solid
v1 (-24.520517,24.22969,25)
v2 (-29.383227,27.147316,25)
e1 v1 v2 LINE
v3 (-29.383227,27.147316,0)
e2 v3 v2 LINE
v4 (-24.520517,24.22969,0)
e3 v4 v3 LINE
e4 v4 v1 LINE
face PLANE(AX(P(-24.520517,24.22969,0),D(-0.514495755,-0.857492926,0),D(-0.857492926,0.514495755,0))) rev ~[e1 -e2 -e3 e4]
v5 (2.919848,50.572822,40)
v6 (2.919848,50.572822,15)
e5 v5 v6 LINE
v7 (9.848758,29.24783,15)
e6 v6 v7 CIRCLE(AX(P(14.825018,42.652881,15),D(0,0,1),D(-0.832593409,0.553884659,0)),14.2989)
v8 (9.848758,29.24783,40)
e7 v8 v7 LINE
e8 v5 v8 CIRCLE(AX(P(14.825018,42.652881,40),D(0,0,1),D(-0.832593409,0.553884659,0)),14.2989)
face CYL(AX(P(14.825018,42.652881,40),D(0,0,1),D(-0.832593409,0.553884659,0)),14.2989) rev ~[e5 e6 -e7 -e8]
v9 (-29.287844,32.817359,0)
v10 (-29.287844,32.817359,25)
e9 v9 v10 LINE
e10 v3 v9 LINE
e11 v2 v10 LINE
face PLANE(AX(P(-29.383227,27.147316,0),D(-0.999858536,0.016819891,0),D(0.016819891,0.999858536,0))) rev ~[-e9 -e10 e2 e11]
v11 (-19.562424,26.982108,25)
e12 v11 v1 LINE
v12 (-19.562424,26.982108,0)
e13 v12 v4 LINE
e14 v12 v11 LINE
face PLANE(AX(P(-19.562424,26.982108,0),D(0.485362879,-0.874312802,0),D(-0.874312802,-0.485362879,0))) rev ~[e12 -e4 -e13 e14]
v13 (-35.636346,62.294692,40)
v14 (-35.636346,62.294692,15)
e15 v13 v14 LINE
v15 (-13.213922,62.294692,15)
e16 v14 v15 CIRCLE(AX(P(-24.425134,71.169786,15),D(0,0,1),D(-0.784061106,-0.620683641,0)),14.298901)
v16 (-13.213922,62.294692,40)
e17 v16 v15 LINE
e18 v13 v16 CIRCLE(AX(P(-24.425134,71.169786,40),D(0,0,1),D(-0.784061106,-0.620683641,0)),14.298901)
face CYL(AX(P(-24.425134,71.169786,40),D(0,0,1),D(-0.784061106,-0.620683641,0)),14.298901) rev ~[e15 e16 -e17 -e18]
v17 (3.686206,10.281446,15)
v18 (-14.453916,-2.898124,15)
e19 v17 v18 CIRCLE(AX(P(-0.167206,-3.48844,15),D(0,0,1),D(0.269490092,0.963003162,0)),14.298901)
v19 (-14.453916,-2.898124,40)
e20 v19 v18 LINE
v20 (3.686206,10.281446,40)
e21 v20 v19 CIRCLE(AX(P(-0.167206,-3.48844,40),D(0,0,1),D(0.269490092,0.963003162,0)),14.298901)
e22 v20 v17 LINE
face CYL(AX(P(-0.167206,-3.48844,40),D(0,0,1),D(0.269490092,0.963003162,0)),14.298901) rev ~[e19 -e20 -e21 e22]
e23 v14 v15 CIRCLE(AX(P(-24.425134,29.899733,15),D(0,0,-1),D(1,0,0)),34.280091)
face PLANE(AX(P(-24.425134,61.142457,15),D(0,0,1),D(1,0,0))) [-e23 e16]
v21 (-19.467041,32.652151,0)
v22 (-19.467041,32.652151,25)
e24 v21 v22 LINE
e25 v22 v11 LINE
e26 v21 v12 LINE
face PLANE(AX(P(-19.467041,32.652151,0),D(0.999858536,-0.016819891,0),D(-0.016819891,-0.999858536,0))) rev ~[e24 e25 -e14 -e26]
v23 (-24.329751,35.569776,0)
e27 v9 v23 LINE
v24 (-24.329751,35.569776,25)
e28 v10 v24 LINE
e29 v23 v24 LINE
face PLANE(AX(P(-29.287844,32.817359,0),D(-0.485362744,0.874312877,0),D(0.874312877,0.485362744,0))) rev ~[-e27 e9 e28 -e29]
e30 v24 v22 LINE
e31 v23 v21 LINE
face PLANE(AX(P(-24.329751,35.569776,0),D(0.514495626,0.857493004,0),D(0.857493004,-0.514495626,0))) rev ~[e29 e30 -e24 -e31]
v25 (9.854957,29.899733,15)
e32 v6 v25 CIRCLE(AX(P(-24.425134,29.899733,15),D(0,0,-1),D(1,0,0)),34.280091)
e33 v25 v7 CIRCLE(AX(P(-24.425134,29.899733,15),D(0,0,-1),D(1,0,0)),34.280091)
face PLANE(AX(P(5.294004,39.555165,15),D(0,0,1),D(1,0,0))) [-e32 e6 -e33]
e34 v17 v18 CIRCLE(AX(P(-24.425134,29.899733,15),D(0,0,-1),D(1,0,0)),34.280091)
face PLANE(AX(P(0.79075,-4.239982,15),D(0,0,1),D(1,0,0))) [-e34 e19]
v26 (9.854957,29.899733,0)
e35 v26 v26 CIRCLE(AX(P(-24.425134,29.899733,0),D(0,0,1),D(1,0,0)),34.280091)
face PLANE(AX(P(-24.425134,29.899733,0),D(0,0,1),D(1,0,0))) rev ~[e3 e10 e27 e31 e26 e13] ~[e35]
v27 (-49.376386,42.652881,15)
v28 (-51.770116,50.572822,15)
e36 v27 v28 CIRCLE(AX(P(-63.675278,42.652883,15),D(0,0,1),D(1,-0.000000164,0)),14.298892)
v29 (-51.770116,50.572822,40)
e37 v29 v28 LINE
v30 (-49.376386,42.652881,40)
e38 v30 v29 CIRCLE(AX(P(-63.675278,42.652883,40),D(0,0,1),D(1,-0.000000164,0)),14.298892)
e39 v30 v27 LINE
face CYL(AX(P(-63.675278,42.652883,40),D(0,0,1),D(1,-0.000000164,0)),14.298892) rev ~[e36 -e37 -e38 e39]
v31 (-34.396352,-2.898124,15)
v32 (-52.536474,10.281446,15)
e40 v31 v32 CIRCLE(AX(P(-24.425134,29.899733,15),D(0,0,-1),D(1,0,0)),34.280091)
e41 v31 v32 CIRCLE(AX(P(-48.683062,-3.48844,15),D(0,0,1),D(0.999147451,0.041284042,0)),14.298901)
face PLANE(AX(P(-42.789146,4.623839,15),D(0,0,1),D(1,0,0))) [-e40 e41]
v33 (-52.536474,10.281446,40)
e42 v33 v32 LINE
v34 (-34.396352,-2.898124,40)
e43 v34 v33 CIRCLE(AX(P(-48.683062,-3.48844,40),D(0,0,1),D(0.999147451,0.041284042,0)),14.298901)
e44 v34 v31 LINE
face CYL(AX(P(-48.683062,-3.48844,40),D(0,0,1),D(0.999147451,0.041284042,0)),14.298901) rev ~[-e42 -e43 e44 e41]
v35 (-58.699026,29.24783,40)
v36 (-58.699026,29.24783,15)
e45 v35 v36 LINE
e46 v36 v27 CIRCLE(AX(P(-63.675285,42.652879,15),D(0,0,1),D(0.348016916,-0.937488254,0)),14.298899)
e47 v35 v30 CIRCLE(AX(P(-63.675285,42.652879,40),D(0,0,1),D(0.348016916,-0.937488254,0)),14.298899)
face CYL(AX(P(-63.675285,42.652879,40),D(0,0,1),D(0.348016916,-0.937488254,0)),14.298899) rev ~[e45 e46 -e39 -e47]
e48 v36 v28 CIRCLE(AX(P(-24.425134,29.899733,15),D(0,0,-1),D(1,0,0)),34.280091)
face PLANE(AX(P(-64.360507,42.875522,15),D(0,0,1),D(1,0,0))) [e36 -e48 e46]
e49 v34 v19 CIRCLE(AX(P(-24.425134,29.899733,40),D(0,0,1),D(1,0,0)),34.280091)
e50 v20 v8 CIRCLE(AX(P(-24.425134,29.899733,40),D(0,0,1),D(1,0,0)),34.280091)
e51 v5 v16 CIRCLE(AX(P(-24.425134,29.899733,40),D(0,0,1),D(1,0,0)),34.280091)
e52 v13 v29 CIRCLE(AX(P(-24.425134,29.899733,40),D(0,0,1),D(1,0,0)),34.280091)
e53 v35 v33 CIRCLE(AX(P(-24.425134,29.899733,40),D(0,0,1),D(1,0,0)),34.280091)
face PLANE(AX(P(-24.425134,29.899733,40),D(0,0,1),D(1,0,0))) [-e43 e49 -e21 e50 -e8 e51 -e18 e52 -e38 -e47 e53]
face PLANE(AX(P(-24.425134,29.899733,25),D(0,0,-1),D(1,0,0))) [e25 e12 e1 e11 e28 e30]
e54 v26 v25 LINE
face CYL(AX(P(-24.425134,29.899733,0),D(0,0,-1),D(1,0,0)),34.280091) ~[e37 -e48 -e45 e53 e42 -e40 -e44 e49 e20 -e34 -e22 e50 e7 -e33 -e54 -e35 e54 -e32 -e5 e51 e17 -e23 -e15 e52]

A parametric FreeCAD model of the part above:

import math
import FreeCAD as App
import Part
import Sketcher


def add_polygon(sketch, points):
    """Adds a closed chain of lines whose ends are joined by coincident constraints."""
    first, n = sketch.GeometryCount, len(points)
    for a, b in zip(points, points[1:] + points[:1]):
        sketch.addGeometry(Part.LineSegment(App.Vector(*a, 0), App.Vector(*b, 0)), False)
    for i in range(n):
        sketch.addConstraint(Sketcher.Constraint("Coincident", first + i, 2, first + (i + 1) % n, 1))

doc = App.newDocument("Part")
body = doc.addObject("PartDesign::Body", "Body")

# Sketch on XY plane
sketch1 = doc.addObject("Sketcher::SketchObject", "Sketch")
body.addObject(sketch1)
sketch1.AttachmentSupport = (doc.XY_Plane, [""])
sketch1.MapMode = "FlatFace"
sketch1.addGeometry(Part.Circle(App.Vector(-24, 30, 0), App.Vector(0, 0, 1), 34), False)
sketch1.addConstraint(Sketcher.Constraint("Diameter", 0, 68.560182))
sketch1.addConstraint(Sketcher.Constraint("DistanceX", 0, 3, -1, 1, 24.425134))
sketch1.addConstraint(Sketcher.Constraint("DistanceY", -1, 1, 0, 3, 29.899733))
pad1 = doc.addObject("PartDesign::Pad", "Pad")
body.addObject(pad1)
pad1.Profile = sketch1
pad1.Length = 40

# Sketch on XY plane
sketch2 = doc.addObject("Sketcher::SketchObject", "Sketch001")
body.addObject(sketch2)
sketch2.AttachmentSupport = (doc.XY_Plane, [""])
sketch2.MapMode = "FlatFace"
sketch2.AttachmentOffset = App.Placement(App.Vector(0, 0, 40), App.Rotation())
sketch2.addGeometry(Part.ArcOfCircle(Part.Circle(App.Vector(-24.4, 71.2, 0), App.Vector(0, 0, 1), 14.3), math.radians(-142), math.radians(-38)), False)
sketch2.addGeometry(Part.ArcOfCircle(Part.Circle(App.Vector(-24.4, 71.2, 0), App.Vector(0, 0, 1), 14.3), math.radians(-38), math.radians(0)), False)
sketch2.addGeometry(Part.ArcOfCircle(Part.Circle(App.Vector(-24.4, 71.2, 0), App.Vector(0, 0, 1), 14.3), math.radians(0), math.radians(218)), False)
sketch2.addGeometry(Part.ArcOfCircle(Part.Circle(App.Vector(14.8, 42.7, 0), App.Vector(0, 0, 1), 14.3), math.radians(146), math.radians(250)), False)
sketch2.addGeometry(Part.ArcOfCircle(Part.Circle(App.Vector(14.8, 42.7, 0), App.Vector(0, 0, 1), 14.3), math.radians(-110), math.radians(0)), False)
sketch2.addGeometry(Part.ArcOfCircle(Part.Circle(App.Vector(14.8, 42.7, 0), App.Vector(0, 0, 1), 14.3), math.radians(0), math.radians(146)), False)
sketch2.addGeometry(Part.ArcOfCircle(Part.Circle(App.Vector(-0.2, -3.5, 0), App.Vector(0, 0, 1), 14.3), math.radians(0), math.radians(74)), False)
sketch2.addGeometry(Part.ArcOfCircle(Part.Circle(App.Vector(-0.2, -3.5, 0), App.Vector(0, 0, 1), 14.3), math.radians(74), math.radians(178)), False)
sketch2.addGeometry(Part.ArcOfCircle(Part.Circle(App.Vector(-0.2, -3.5, 0), App.Vector(0, 0, 1), 14.3), math.radians(178), math.radians(360)), False)
sketch2.addGeometry(Part.ArcOfCircle(Part.Circle(App.Vector(-48.7, -3.5, 0), App.Vector(0, 0, 1), 14.3), math.radians(2), math.radians(106)), False)
sketch2.addGeometry(Part.ArcOfCircle(Part.Circle(App.Vector(-48.7, -3.5, 0), App.Vector(0, 0, 1), 14.3), math.radians(106), math.radians(360)), False)
sketch2.addGeometry(Part.ArcOfCircle(Part.Circle(App.Vector(-48.7, -3.5, 0), App.Vector(0, 0, 1), 14.3), math.radians(0), math.radians(2.37)), False)
sketch2.addGeometry(Part.ArcOfCircle(Part.Circle(App.Vector(-63.7, 42.7, 0), App.Vector(0, 0, 1), 14.3), math.radians(34), math.radians(290)), False)
sketch2.addGeometry(Part.ArcOfCircle(Part.Circle(App.Vector(-63.7, 42.7, 0), App.Vector(0, 0, 1), 14.3), math.radians(-70), math.radians(0)), False)
sketch2.addGeometry(Part.ArcOfCircle(Part.Circle(App.Vector(-63.7, 42.7, 0), App.Vector(0, 0, 1), 14.3), math.radians(0), math.radians(34)), False)
sketch2.addConstraint(Sketcher.Constraint("Tangent", 0, 2, 1, 1))
sketch2.addConstraint(Sketcher.Constraint("Tangent", 1, 2, 2, 1))
sketch2.addConstraint(Sketcher.Constraint("Tangent", 2, 2, 0, 1))
sketch2.addConstraint(Sketcher.Constraint("Tangent", 3, 2, 4, 1))
sketch2.addConstraint(Sketcher.Constraint("Tangent", 4, 2, 5, 1))
sketch2.addConstraint(Sketcher.Constraint("Tangent", 5, 2, 3, 1))
sketch2.addConstraint(Sketcher.Constraint("Tangent", 6, 2, 7, 1))
sketch2.addConstraint(Sketcher.Constraint("Tangent", 7, 2, 8, 1))
sketch2.addConstraint(Sketcher.Constraint("Tangent", 8, 2, 6, 1))
sketch2.addConstraint(Sketcher.Constraint("Tangent", 9, 2, 10, 1))
sketch2.addConstraint(Sketcher.Constraint("Tangent", 10, 2, 11, 1))
sketch2.addConstraint(Sketcher.Constraint("Coincident", 11, 2, 9, 1))
sketch2.addConstraint(Sketcher.Constraint("Tangent", 12, 2, 13, 1))
sketch2.addConstraint(Sketcher.Constraint("Tangent", 13, 2, 14, 1))
sketch2.addConstraint(Sketcher.Constraint("Tangent", 14, 2, 12, 1))
sketch2.addConstraint(Sketcher.Constraint("Equal", 2, 3))
sketch2.addConstraint(Sketcher.Constraint("Equal", 5, 6))
sketch2.addConstraint(Sketcher.Constraint("Equal", 8, 9))
sketch2.addConstraint(Sketcher.Constraint("Equal", 10, 12))
sketch2.addConstraint(Sketcher.Constraint("Horizontal", 8, 3, 9, 3))
sketch2.addConstraint(Sketcher.Constraint("Horizontal", 5, 3, 12, 3))
sketch2.addConstraint(Sketcher.Constraint("Horizontal", 2, 3, 1, 2))
sketch2.addConstraint(Sketcher.Constraint("Horizontal", 0, 2, 2, 2))
sketch2.addConstraint(Sketcher.Constraint("Horizontal", 13, 3, 4, 2))
sketch2.addConstraint(Sketcher.Constraint("Horizontal", 10, 3, 8, 2))
sketch2.addConstraint(Sketcher.Constraint("Horizontal", 6, 2, 9, 2))
sketch2.addConstraint(Sketcher.Constraint("Horizontal", 8, 2, 10, 2))
sketch2.addConstraint(Sketcher.Constraint("Horizontal", 7, 2, 11, 2))
sketch2.addConstraint(Sketcher.Constraint("Horizontal", 3, 2, 12, 2))
sketch2.addConstraint(Sketcher.Constraint("Horizontal", 4, 2, 13, 2))
sketch2.addConstraint(Sketcher.Constraint("Horizontal", 5, 2, 14, 2))
sketch2.addConstraint(Sketcher.Constraint("Radius", 0, 14.298901))
sketch2.addConstraint(Sketcher.Constraint("Radius", 11, 14.298058))
sketch2.addConstraint(Sketcher.Constraint("DistanceY", 14, 3, 1, 3, 28.516901))
sketch2.addConstraint(Sketcher.Constraint("DistanceX", 1, 3, -1, 1, 24.425128))
sketch2.addConstraint(Sketcher.Constraint("DistanceY", -1, 1, 3, 3, 42.652881))
sketch2.addConstraint(Sketcher.Constraint("DistanceX", -1, 1, 4, 3, 14.825019))
sketch2.addConstraint(Sketcher.Constraint("DistanceY", 6, 3, -1, 1, 3.488441))
sketch2.addConstraint(Sketcher.Constraint("DistanceX", 9, 3, -1, 1, 48.683062))
sketch2.addConstraint(Sketcher.Constraint("DistanceX", 0, 2, -1, 1, 13.213922))
sketch2.addConstraint(Sketcher.Constraint("DistanceX", -1, 1, 3, 2, 9.848758))
sketch2.addConstraint(Sketcher.Constraint("DistanceX", 0, 3, 6, 3, 24.257929))
sketch2.addConstraint(Sketcher.Constraint("DistanceX", 12, 3, 1, 3, 39.250159))
sketch2.addConstraint(Sketcher.Constraint("DistanceX", 5, 2, 3, 3, 11.90517))
sketch2.addConstraint(Sketcher.Constraint("DistanceX", 8, 3, 6, 2, 3.853411))
sketch2.addConstraint(Sketcher.Constraint("DistanceX", 7, 2, 7, 3, 14.28671))
pocket1 = doc.addObject("PartDesign::Pocket", "Pocket")
body.addObject(pocket1)
pocket1.Profile = sketch2
pocket1.Length = 25

# Sketch on XY plane
sketch3 = doc.addObject("Sketcher::SketchObject", "Sketch002")
body.addObject(sketch3)
sketch3.AttachmentSupport = (doc.XY_Plane, [""])
sketch3.MapMode = "FlatFace"
add_polygon(sketch3, [(-24.329751, 35.569776), (-19.467041, 32.652151), (-19.562424, 26.982108), (-24.520517, 24.22969), (-29.383227, 27.147316), (-29.287844, 32.817359)])  # lines 0-5
sketch3.addConstraint(Sketcher.Constraint("DistanceX", 0, 2, -1, 1, 19.467041))
sketch3.addConstraint(Sketcher.Constraint("DistanceY", -1, 1, 0, 2, 32.652151))
sketch3.addConstraint(Sketcher.Constraint("DistanceY", -1, 1, 1, 2, 26.982108))
sketch3.addConstraint(Sketcher.Constraint("DistanceY", -1, 1, 2, 2, 24.22969))
sketch3.addConstraint(Sketcher.Constraint("DistanceY", -1, 1, 4, 2, 32.817359))
sketch3.addConstraint(Sketcher.Constraint("DistanceX", 5, 2, -1, 1, 24.329751))
sketch3.addConstraint(Sketcher.Constraint("DistanceX", 3, 2, 2, 2, 4.86271))
sketch3.addConstraint(Sketcher.Constraint("DistanceX", 4, 2, 1, 2, 9.72542))
sketch3.addConstraint(Sketcher.Constraint("DistanceY", 3, 2, 5, 2, 8.42246))
sketch3.addConstraint(Sketcher.Constraint("Distance", 0, 5.670845))
sketch3.addConstraint(Sketcher.Constraint("Distance", 1, 5.670845))
sketch3.addConstraint(Sketcher.Constraint("Distance", 2, 5.670846))
pocket2 = doc.addObject("PartDesign::Pocket", "Pocket001")
body.addObject(pocket2)
pocket2.Profile = sketch3
pocket2.Length = 25
pocket2.Reversed = True

doc.recompute()
